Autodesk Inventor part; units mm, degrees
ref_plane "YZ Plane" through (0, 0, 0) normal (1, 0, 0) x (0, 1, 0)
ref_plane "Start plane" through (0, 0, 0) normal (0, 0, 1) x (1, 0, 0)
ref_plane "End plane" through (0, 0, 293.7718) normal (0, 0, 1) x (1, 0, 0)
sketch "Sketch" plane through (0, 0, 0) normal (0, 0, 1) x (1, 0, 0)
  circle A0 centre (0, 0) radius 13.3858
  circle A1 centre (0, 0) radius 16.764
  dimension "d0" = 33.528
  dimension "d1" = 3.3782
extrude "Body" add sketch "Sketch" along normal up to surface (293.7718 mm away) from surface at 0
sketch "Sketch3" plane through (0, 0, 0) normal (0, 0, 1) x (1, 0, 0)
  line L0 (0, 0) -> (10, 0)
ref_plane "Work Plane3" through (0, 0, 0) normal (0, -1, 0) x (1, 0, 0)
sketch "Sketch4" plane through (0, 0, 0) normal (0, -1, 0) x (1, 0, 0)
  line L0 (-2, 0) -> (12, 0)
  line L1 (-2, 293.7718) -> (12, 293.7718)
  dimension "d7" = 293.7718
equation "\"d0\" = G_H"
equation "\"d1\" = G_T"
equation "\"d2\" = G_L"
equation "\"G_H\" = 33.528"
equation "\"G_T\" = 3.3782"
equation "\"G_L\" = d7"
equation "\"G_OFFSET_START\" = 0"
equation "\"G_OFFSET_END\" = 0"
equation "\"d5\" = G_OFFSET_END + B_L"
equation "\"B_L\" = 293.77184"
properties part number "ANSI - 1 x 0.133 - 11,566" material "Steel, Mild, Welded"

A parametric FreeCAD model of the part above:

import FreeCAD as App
import Part
import Sketcher

V = App.Vector
Q = App.Units.Quantity

doc = App.newDocument("Part")
body = doc.addObject("PartDesign::Body", "Body")

sketch1 = body.newObject("Sketcher::SketchObject", "Sketch")
sketch1.AttachmentSupport = (doc.getObject("XY_Plane"), [""])
sketch1.MapMode = "FlatFace"
sketch1.addGeometry([
    Part.Circle(V(0, 0, 0), V(0, 0, 1), 16.764),
    Part.Circle(V(0, 0, 0), V(0, 0, 1), 13.3858),
], False)
sketch1.addConstraint([
    Sketcher.Constraint("Coincident", 0, 3, -1, 1),
    Sketcher.Constraint("Coincident", 1, 3, -1, 1),
    Sketcher.Constraint("Diameter", 0, Q("1.32 in")),
    Sketcher.Constraint("Diameter", 1, Q("1.054 in")),
])
pad1 = body.newObject("PartDesign::Pad", "Pad")
pad1.Profile = sketch1
pad1.Length = 293.7718

doc.recompute()
